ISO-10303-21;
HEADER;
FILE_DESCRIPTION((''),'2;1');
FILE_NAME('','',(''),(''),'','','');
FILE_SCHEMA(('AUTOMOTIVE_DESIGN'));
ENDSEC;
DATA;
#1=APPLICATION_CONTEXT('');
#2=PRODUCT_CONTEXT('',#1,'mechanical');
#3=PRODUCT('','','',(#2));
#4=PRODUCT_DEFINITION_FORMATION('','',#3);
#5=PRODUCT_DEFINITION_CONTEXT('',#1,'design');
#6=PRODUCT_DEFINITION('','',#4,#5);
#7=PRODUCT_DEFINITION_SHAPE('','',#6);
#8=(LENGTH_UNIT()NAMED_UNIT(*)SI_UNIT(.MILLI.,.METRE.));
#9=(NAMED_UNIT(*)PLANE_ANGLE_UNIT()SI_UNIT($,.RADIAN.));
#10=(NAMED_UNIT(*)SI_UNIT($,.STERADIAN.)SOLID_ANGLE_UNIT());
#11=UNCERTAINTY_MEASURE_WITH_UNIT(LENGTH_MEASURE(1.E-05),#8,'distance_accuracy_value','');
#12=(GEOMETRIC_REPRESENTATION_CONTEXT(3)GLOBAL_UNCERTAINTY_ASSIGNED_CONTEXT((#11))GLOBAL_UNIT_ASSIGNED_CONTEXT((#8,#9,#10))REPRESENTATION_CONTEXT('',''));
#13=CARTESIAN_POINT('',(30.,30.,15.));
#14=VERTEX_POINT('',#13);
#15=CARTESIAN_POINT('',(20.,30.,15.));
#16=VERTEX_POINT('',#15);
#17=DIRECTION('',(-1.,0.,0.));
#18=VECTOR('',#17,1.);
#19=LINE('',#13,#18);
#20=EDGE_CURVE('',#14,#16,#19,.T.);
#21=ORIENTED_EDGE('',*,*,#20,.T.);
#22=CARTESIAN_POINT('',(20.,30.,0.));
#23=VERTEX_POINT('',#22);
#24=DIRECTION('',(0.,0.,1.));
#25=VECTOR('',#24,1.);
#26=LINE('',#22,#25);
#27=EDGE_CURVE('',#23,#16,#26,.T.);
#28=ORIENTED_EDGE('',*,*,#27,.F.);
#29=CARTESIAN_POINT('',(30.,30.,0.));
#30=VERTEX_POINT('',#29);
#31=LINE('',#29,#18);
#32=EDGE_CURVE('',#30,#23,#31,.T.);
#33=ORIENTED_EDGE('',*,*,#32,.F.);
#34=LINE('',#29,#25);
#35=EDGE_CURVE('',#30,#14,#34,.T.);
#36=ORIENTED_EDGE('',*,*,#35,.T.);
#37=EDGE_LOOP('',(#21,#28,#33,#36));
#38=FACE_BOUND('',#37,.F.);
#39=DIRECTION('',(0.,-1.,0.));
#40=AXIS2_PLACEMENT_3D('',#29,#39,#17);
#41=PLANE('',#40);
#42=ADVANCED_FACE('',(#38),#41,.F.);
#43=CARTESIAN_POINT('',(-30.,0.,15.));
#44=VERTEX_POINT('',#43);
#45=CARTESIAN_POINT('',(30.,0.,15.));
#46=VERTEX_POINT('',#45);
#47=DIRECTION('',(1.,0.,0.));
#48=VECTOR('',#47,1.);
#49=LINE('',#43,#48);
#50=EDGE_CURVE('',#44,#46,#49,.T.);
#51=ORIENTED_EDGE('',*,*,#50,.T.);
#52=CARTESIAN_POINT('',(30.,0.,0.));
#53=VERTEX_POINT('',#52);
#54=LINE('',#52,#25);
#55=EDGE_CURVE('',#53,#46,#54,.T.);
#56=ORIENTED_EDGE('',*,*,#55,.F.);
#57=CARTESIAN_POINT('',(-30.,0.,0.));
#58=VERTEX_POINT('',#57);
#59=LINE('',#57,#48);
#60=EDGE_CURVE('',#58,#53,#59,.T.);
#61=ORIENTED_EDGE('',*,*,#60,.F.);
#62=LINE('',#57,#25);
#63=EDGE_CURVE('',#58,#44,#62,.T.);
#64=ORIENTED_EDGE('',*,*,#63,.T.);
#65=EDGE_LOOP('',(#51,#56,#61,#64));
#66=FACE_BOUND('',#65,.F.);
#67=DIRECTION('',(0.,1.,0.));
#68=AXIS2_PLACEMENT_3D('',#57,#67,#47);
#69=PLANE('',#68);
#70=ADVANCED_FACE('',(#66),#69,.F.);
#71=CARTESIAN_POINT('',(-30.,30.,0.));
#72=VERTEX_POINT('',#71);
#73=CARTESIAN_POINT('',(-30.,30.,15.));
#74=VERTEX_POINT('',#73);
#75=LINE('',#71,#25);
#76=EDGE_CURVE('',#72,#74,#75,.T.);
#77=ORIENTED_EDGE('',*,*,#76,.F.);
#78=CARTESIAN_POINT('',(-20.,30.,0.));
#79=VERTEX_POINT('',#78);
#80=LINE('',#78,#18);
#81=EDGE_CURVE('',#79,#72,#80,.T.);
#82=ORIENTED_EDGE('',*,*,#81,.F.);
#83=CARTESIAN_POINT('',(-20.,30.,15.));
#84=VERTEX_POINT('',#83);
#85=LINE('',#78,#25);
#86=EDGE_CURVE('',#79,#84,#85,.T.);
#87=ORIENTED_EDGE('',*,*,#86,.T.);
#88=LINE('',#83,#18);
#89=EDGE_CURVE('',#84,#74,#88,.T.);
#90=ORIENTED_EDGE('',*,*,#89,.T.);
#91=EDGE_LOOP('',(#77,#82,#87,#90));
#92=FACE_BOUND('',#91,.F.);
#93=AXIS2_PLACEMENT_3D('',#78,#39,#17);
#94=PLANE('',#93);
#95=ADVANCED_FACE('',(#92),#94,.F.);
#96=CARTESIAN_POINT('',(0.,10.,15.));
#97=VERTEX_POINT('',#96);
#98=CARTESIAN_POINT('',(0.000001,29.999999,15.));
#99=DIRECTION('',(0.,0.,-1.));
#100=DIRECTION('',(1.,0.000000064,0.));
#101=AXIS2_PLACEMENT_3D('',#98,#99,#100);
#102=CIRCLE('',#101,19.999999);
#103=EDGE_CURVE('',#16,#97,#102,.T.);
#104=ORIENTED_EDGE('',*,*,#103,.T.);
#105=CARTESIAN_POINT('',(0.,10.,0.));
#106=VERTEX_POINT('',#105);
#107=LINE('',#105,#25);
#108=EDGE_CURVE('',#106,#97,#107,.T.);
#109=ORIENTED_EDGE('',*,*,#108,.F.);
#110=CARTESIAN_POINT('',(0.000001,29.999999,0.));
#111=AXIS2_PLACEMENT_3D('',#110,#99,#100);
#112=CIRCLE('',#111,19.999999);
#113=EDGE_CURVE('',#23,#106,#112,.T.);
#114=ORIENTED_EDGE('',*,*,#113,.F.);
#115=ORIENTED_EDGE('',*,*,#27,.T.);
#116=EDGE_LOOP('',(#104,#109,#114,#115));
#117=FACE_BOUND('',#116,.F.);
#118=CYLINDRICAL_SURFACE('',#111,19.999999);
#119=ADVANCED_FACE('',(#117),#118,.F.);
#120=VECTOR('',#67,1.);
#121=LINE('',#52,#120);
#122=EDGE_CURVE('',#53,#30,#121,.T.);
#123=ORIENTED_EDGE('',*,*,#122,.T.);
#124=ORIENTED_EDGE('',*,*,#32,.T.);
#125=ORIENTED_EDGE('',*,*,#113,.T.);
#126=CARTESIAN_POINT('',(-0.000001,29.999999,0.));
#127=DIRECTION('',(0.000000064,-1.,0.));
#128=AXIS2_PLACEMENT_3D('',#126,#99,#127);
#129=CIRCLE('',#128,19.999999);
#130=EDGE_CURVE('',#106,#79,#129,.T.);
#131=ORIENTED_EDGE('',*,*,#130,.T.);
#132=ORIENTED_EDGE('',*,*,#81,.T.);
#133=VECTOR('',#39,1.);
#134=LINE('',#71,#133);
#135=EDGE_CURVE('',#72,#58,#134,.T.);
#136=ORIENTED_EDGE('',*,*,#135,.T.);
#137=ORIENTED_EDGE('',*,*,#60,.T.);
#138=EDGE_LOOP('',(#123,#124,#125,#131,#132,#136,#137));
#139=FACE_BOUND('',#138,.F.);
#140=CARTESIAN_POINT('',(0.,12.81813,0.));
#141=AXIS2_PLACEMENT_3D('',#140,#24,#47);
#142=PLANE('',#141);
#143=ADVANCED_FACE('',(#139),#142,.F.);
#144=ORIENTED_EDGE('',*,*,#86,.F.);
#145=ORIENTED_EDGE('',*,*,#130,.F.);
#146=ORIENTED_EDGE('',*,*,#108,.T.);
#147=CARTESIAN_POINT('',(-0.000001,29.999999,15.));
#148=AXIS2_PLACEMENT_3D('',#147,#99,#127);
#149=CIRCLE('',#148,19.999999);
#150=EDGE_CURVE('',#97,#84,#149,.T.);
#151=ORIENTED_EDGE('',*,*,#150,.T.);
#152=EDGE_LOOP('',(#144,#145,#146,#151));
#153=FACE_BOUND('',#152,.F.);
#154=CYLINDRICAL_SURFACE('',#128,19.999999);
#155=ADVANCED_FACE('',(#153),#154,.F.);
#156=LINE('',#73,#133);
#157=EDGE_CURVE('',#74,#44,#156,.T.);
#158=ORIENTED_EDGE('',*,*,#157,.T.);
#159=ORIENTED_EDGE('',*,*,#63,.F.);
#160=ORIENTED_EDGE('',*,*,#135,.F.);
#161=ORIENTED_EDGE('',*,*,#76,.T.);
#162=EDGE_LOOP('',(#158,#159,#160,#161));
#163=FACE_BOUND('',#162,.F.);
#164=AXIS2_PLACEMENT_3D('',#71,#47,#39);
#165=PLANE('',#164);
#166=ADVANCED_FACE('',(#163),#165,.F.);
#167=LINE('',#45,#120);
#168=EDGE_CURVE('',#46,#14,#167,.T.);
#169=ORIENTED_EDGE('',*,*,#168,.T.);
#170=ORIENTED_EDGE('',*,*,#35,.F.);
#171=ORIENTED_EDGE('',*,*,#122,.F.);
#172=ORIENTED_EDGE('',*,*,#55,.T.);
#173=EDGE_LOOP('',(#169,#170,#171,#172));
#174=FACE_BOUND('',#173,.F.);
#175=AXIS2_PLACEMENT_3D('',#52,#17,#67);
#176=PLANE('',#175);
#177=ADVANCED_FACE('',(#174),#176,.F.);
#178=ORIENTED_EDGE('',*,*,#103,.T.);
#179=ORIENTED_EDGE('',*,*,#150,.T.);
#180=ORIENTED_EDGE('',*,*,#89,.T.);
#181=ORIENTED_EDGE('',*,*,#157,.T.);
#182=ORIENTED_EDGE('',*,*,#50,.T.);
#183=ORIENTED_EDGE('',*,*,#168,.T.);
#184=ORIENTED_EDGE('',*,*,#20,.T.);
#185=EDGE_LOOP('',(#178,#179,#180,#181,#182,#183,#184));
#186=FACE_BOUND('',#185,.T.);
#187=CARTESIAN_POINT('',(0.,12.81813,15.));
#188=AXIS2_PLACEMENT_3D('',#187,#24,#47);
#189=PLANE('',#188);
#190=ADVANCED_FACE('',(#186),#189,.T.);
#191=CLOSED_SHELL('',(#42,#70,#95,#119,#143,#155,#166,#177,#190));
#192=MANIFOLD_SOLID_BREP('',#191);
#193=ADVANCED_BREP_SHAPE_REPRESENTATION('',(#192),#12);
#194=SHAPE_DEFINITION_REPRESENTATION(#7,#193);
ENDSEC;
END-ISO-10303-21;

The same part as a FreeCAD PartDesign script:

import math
import FreeCAD as App
import Part
import Sketcher
Q = App.Units.Quantity

doc = App.newDocument("Part")
body = doc.addObject("PartDesign::Body", "Body")

# Sketch on XY plane
sketch1 = doc.addObject("Sketcher::SketchObject", "Sketch")
body.addObject(sketch1)
sketch1.AttachmentSupport = (doc.XY_Plane, [""])
sketch1.MapMode = "FlatFace"
sketch1.addGeometry(Part.LineSegment(App.Vector(-30, 0, 0), App.Vector(30, 0, 0)), False)
sketch1.addGeometry(Part.LineSegment(App.Vector(30, 0, 0), App.Vector(30, 30, 0)), False)
sketch1.addGeometry(Part.LineSegment(App.Vector(30, 30, 0), App.Vector(20, 30, 0)), False)
sketch1.addGeometry(Part.ArcOfCircle(Part.Circle(App.Vector(0, 30, 0), App.Vector(0, 0, 1), 20), math.radians(-90), math.radians(0)), False)
sketch1.addGeometry(Part.ArcOfCircle(Part.Circle(App.Vector(0, 30, 0), App.Vector(0, 0, 1), 20), math.radians(180), math.radians(270)), False)
sketch1.addGeometry(Part.LineSegment(App.Vector(-20, 30, 0), App.Vector(-30, 30, 0)), False)
sketch1.addGeometry(Part.LineSegment(App.Vector(-30, 30, 0), App.Vector(-30, 0, 0)), False)
sketch1.addConstraint(Sketcher.Constraint("Coincident", 0, 2, 1, 1))
sketch1.addConstraint(Sketcher.Constraint("Coincident", 1, 2, 2, 1))
sketch1.addConstraint(Sketcher.Constraint("Coincident", 2, 2, 3, 2))
sketch1.addConstraint(Sketcher.Constraint("Tangent", 3, 1, 4, 2))
sketch1.addConstraint(Sketcher.Constraint("Coincident", 4, 1, 5, 1))
sketch1.addConstraint(Sketcher.Constraint("Coincident", 5, 2, 6, 1))
sketch1.addConstraint(Sketcher.Constraint("Coincident", 6, 2, 0, 1))
sketch1.addConstraint(Sketcher.Constraint("Horizontal", 0))
sketch1.addConstraint(Sketcher.Constraint("Vertical", 1))
sketch1.addConstraint(Sketcher.Constraint("Horizontal", 2))
sketch1.addConstraint(Sketcher.Constraint("Horizontal", 5))
sketch1.addConstraint(Sketcher.Constraint("Vertical", 6))
sketch1.addConstraint(Sketcher.Constraint("Equal", 3, 4))
sketch1.addConstraint(Sketcher.Constraint("Symmetric", 0, 2, 6, 2, -1, 1))
sketch1.addConstraint(Sketcher.Constraint("Symmetric", 2, 2, 4, 1, -2))
sketch1.addConstraint(Sketcher.Constraint("PointOnObject", 3, 1, -2))
sketch1.addConstraint(Sketcher.Constraint("Horizontal", 4, 3, 1, 2))
sketch1.addConstraint(Sketcher.Constraint("Radius", 3, Q("19.999999 mm")))
sketch1.addConstraint(Sketcher.Constraint("DistanceX", 0, 1, 0, 2, Q("60 mm")))
sketch1.addConstraint(Sketcher.Constraint("DistanceY", 1, 1, 1, 2, Q("30 mm")))
pad1 = doc.addObject("PartDesign::Pad", "Pad")
body.addObject(pad1)
pad1.Profile = sketch1
pad1.Length = 15

doc.recompute()
